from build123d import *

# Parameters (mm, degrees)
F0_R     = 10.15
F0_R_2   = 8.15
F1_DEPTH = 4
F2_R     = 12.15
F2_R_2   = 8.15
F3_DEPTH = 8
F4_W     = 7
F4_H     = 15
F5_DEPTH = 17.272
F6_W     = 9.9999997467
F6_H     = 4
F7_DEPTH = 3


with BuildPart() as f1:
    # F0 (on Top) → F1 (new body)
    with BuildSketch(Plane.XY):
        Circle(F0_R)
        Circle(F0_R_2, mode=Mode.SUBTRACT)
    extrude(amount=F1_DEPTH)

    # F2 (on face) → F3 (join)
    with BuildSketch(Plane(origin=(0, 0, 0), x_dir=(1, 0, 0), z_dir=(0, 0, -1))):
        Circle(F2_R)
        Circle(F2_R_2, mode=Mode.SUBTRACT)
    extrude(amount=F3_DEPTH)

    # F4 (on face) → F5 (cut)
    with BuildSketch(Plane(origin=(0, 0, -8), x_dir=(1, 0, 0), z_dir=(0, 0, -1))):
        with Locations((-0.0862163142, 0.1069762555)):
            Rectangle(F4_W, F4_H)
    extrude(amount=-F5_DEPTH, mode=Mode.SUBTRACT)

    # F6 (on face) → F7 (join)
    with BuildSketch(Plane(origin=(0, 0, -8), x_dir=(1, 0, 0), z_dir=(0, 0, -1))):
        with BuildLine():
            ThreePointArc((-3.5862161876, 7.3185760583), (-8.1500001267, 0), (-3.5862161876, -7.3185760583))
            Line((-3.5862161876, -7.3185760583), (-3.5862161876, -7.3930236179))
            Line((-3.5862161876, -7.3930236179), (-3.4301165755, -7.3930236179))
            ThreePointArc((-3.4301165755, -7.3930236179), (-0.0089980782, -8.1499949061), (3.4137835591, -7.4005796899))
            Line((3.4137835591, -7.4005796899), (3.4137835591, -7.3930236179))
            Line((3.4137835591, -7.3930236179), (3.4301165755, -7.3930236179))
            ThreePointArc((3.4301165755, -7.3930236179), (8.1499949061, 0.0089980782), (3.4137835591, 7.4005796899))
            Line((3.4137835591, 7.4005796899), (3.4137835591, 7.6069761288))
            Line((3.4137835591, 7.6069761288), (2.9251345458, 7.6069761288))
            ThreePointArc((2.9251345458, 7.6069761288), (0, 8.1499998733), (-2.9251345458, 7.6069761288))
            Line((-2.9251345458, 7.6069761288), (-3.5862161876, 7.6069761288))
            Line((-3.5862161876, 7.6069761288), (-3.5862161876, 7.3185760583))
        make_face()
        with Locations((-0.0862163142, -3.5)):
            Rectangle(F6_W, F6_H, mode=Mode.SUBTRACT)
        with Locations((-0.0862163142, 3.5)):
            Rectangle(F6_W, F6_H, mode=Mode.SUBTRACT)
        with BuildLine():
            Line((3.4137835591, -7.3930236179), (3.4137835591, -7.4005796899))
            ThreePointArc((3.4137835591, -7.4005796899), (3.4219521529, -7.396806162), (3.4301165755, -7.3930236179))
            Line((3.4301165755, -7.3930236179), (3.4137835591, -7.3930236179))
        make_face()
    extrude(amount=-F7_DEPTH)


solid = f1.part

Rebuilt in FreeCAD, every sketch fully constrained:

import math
import FreeCAD as App
import Part
import Sketcher
Q = App.Units.Quantity


def add_polygon(sketch, points):
    """Adds a closed chain of lines whose ends are joined by coincident constraints."""
    first, n = sketch.GeometryCount, len(points)
    for a, b in zip(points, points[1:] + points[:1]):
        sketch.addGeometry(Part.LineSegment(App.Vector(*a, 0), App.Vector(*b, 0)), False)
    for i in range(n):
        sketch.addConstraint(Sketcher.Constraint("Coincident", first + i, 2, first + (i + 1) % n, 1))

doc = App.newDocument("Part")
params = doc.addObject("Spreadsheet::Sheet", "Params")
for row, (alias, value) in enumerate([
    ("sketch1_diameter", "20.3 mm"),
    ("sketch1_diameter2", "16.3 mm"),
    ("pad1_length", "4 mm"),
    ("sketch2_diameter", "24.3 mm"),
    ("sketch2_diameter2", "16.3 mm"),
    ("pad2_length", "8 mm"),
    ("sketch3_width", "7 mm"),
    ("sketch3_height", "15 mm"),
    ("pocket1_length", "17.272 mm"),
    ("sketch4_width", "10 mm"),
    ("sketch4_width2", "10 mm"),
    ("sketch4_height", "4 mm"),
    ("sketch4_height2", "4 mm"),
    ("sketch4_radius", "8.15 mm"),
    ("pad3_length", "3 mm"),
], start=1):
    params.set(f"A{row}", alias)
    params.set(f"B{row}", "=" + value)
    params.setAlias(f"B{row}", alias)

body = doc.addObject("PartDesign::Body", "Body")

sketch1 = body.newObject("Sketcher::SketchObject", "Sketch")
sketch1.AttachmentSupport = (doc.getObject("XY_Plane"), [""])
sketch1.MapMode = "FlatFace"
sketch1.addGeometry(Part.Circle(App.Vector(0, 0, 0), App.Vector(0, 0, 1), 10), False)
sketch1.addGeometry(Part.Circle(App.Vector(0, 0, 0), App.Vector(0, 0, 1), 8), False)
sketch1.addConstraint(Sketcher.Constraint("Coincident", 0, 3, -1, 1))
sketch1.addConstraint(Sketcher.Constraint("Coincident", 1, 3, -1, 1))
sketch1.addConstraint(Sketcher.Constraint("Diameter", 0, Q("20.3 mm")))
sketch1.addConstraint(Sketcher.Constraint("Diameter", 1, Q("16.3 mm")))
sketch1.setExpression("Constraints[2]", "Params.sketch1_diameter")
sketch1.setExpression("Constraints[3]", "Params.sketch1_diameter2")
pad1 = body.newObject("PartDesign::Pad", "Pad")
pad1.Profile = sketch1
pad1.setExpression("Length", "Params.pad1_length")

sketch2 = body.newObject("Sketcher::SketchObject", "Sketch001")
sketch2.AttachmentSupport = (doc.getObject("XY_Plane"), [""])
sketch2.MapMode = "FlatFace"
sketch2.addGeometry(Part.Circle(App.Vector(0, 0, 0), App.Vector(0, 0, 1), 12), False)
sketch2.addGeometry(Part.Circle(App.Vector(0, 0, 0), App.Vector(0, 0, 1), 8), False)
sketch2.addConstraint(Sketcher.Constraint("Coincident", 0, 3, -1, 1))
sketch2.addConstraint(Sketcher.Constraint("Coincident", 1, 3, -1, 1))
sketch2.addConstraint(Sketcher.Constraint("Diameter", 0, Q("24.3 mm")))
sketch2.addConstraint(Sketcher.Constraint("Diameter", 1, Q("16.3 mm")))
sketch2.setExpression("Constraints[2]", "Params.sketch2_diameter")
sketch2.setExpression("Constraints[3]", "Params.sketch2_diameter2")
pad2 = body.newObject("PartDesign::Pad", "Pad001")
pad2.Profile = sketch2
pad2.setExpression("Length", "Params.pad2_length")
pad2.Reversed = True

sketch3 = body.newObject("Sketcher::SketchObject", "Sketch002")
sketch3.AttachmentSupport = (doc.getObject("XY_Plane"), [""])
sketch3.MapMode = "FlatFace"
sketch3.AttachmentOffset = App.Placement(App.Vector(0, 0, -8), App.Rotation())
add_polygon(sketch3, [(-4, -8), (-4, 7), (3, 7), (3, -8)])
sketch3.addConstraint(Sketcher.Constraint("Vertical", 0))
sketch3.addConstraint(Sketcher.Constraint("Horizontal", 1))
sketch3.addConstraint(Sketcher.Constraint("Vertical", 2))
sketch3.addConstraint(Sketcher.Constraint("Horizontal", 3))
sketch3.addConstraint(Sketcher.Constraint("DistanceX", 1, 1, 1, 2, Q("7 mm")))
sketch3.addConstraint(Sketcher.Constraint("DistanceY", 0, 1, 0, 2, Q("15 mm")))
sketch3.addConstraint(Sketcher.Constraint("DistanceX", 0, 2, -1, 1, Q("3.586216 mm")))
sketch3.addConstraint(Sketcher.Constraint("DistanceY", -1, 1, 0, 2, Q("7.393024 mm")))
sketch3.setExpression("Constraints[8]", "Params.sketch3_width")
sketch3.setExpression("Constraints[9]", "Params.sketch3_height")
pocket1 = body.newObject("PartDesign::Pocket", "Pocket")
pocket1.Profile = sketch3
pocket1.setExpression("Length", "Params.pocket1_length")
pocket1.Reversed = True

sketch4 = body.newObject("Sketcher::SketchObject", "Sketch003")
sketch4.AttachmentSupport = (doc.getObject("XY_Plane"), [""])
sketch4.MapMode = "FlatFace"
sketch4.AttachmentOffset = App.Placement(App.Vector(0, 0, -8), App.Rotation())
sketch4.addGeometry(Part.ArcOfCircle(Part.Circle(App.Vector(0, 0, 0), App.Vector(0, 0, 1), 8.15), math.radians(116.105573), math.radians(243.894427)), False)
sketch4.addGeometry(Part.LineSegment(App.Vector(-3.586216, 7.318576, 0), App.Vector(-3.586216, 7.393024, 0)), False)
sketch4.addGeometry(Part.LineSegment(App.Vector(-3.586216, 7.393024, 0), App.Vector(-3.430117, 7.393024, 0)), False)
sketch4.addGeometry(Part.ArcOfCircle(Part.Circle(App.Vector(0, 0, 0), App.Vector(0, 0, 1), 8.15), math.radians(65.236787), math.radians(114.889729)), False)
sketch4.addGeometry(Part.ArcOfCircle(Part.Circle(App.Vector(-0.00003, -0.000065, 0), App.Vector(0, 0, 1), 8.150071), math.radians(65.110272), math.radians(65.236787)), False)
sketch4.addGeometry(Part.ArcOfCircle(Part.Circle(App.Vector(0, 0, 0), App.Vector(0, 0, 1), 8.15), math.radians(-65.236787), math.radians(65.110271)), False)
sketch4.addGeometry(Part.LineSegment(App.Vector(3.413784, -7.40058, 0), App.Vector(3.413784, -7.606976, 0)), False)
sketch4.addGeometry(Part.LineSegment(App.Vector(3.413784, -7.606976, 0), App.Vector(2.925135, -7.606976, 0)), False)
sketch4.addGeometry(Part.ArcOfCircle(Part.Circle(App.Vector(0, 0, 0), App.Vector(0, 0, 1), 8.15), math.radians(-111.033407), math.radians(-68.966593)), False)
sketch4.addGeometry(Part.LineSegment(App.Vector(-2.925135, -7.606976, 0), App.Vector(-3.586216, -7.606976, 0)), False)
sketch4.addGeometry(Part.LineSegment(App.Vector(-3.586216, -7.606976, 0), App.Vector(-3.586216, -7.318576, 0)), False)
add_polygon(sketch4, [(4.913784, 5.5), (-5.086216, 5.5), (-5.086216, 1.5), (4.913784, 1.5)])
add_polygon(sketch4, [(4.913784, -1.5), (-5.086216, -1.5), (-5.086216, -5.5), (4.913784, -5.5)])
sketch4.addConstraint(Sketcher.Constraint("Coincident", 0, 1, 1, 1))
sketch4.addConstraint(Sketcher.Constraint("Coincident", 1, 2, 2, 1))
sketch4.addConstraint(Sketcher.Constraint("Coincident", 2, 2, 3, 2))
sketch4.addConstraint(Sketcher.Constraint("Coincident", 3, 1, 4, 2))
sketch4.addConstraint(Sketcher.Constraint("Coincident", 4, 1, 5, 2))
sketch4.addConstraint(Sketcher.Constraint("Coincident", 5, 1, 6, 1))
sketch4.addConstraint(Sketcher.Constraint("Coincident", 6, 2, 7, 1))
sketch4.addConstraint(Sketcher.Constraint("Coincident", 7, 2, 8, 2))
sketch4.addConstraint(Sketcher.Constraint("Coincident", 8, 1, 9, 1))
sketch4.addConstraint(Sketcher.Constraint("Coincident", 9, 2, 10, 1))
sketch4.addConstraint(Sketcher.Constraint("Coincident", 10, 2, 0, 2))
sketch4.addConstraint(Sketcher.Constraint("Vertical", 1))
sketch4.addConstraint(Sketcher.Constraint("Horizontal", 2))
sketch4.addConstraint(Sketcher.Constraint("Vertical", 6))
sketch4.addConstraint(Sketcher.Constraint("Horizontal", 7))
sketch4.addConstraint(Sketcher.Constraint("Horizontal", 9))
sketch4.addConstraint(Sketcher.Constraint("Vertical", 10))
sketch4.addConstraint(Sketcher.Constraint("Horizontal", 11))
sketch4.addConstraint(Sketcher.Constraint("Vertical", 12))
sketch4.addConstraint(Sketcher.Constraint("Horizontal", 13))
sketch4.addConstraint(Sketcher.Constraint("Vertical", 14))
sketch4.addConstraint(Sketcher.Constraint("Horizontal", 15))
sketch4.addConstraint(Sketcher.Constraint("Vertical", 16))
sketch4.addConstraint(Sketcher.Constraint("Horizontal", 17))
sketch4.addConstraint(Sketcher.Constraint("Vertical", 18))
sketch4.addConstraint(Sketcher.Constraint("Coincident", 0, 3, -1, 1))
sketch4.addConstraint(Sketcher.Constraint("Coincident", 3, 3, -1, 1))
sketch4.addConstraint(Sketcher.Constraint("Coincident", 5, 3, -1, 1))
sketch4.addConstraint(Sketcher.Constraint("Coincident", 8, 3, -1, 1))
sketch4.addConstraint(Sketcher.Constraint("DistanceX", 11, 2, 11, 1, Q("10 mm")))
sketch4.addConstraint(Sketcher.Constraint("DistanceX", 15, 2, 15, 1, Q("10 mm")))
sketch4.addConstraint(Sketcher.Constraint("DistanceY", 12, 2, 12, 1, Q("4 mm")))
sketch4.addConstraint(Sketcher.Constraint("DistanceY", 16, 2, 16, 1, Q("4 mm")))
sketch4.addConstraint(Sketcher.Constraint("Radius", 0, Q("8.15 mm")))
sketch4.addConstraint(Sketcher.Constraint("Radius", 3, Q("8.15 mm")))
sketch4.addConstraint(Sketcher.Constraint("Radius", 5, Q("8.15 mm")))
sketch4.addConstraint(Sketcher.Constraint("Radius", 8, Q("8.15 mm")))
sketch4.addConstraint(Sketcher.Constraint("DistanceX", 1, 2, 3, 1, Q("7 mm")))
sketch4.addConstraint(Sketcher.Constraint("DistanceX", 9, 2, 6, 2, Q("7 mm")))
sketch4.addConstraint(Sketcher.Constraint("DistanceY", 15, 2, 12, 2, Q("3 mm")))
sketch4.addConstraint(Sketcher.Constraint("DistanceY", -1, 1, 11, 2, Q("5.5 mm")))
sketch4.addConstraint(Sketcher.Constraint("DistanceX", 11, 2, 0, 1, Q("1.5 mm")))
sketch4.addConstraint(Sketcher.Constraint("DistanceX", 16, 2, 10, 2, Q("1.5 mm")))
sketch4.addConstraint(Sketcher.Constraint("Radius", 4, Q("8.150071 mm")))
sketch4.addConstraint(Sketcher.Constraint("DistanceX", 2, 1, 2, 2, Q("0.1561 mm")))
sketch4.addConstraint(Sketcher.Constraint("DistanceY", 10, 1, 10, 2, Q("0.2884 mm")))
sketch4.addConstraint(Sketcher.Constraint("DistanceX", 7, 2, 7, 1, Q("0.488649 mm")))
sketch4.addConstraint(Sketcher.Constraint("DistanceX", 9, 2, 9, 1, Q("0.661082 mm")))
sketch4.addConstraint(Sketcher.Constraint("DistanceY", 1, 1, 1, 2, Q("0.074448 mm")))
sketch4.addConstraint(Sketcher.Constraint("DistanceX", -1, 1, 4, 1, Q("3.430117 mm")))
sketch4.setExpression("Constraints[37]", "Params.sketch4_width")
sketch4.setExpression("Constraints[38]", "Params.sketch4_width2")
sketch4.setExpression("Constraints[39]", "Params.sketch4_height")
sketch4.setExpression("Constraints[40]", "Params.sketch4_height2")
sketch4.setExpression("Constraints[41]", "Params.sketch4_radius")
pad3 = body.newObject("PartDesign::Pad", "Pad002")
pad3.Profile = sketch4
pad3.setExpression("Length", "Params.pad3_length")

doc.recompute()
